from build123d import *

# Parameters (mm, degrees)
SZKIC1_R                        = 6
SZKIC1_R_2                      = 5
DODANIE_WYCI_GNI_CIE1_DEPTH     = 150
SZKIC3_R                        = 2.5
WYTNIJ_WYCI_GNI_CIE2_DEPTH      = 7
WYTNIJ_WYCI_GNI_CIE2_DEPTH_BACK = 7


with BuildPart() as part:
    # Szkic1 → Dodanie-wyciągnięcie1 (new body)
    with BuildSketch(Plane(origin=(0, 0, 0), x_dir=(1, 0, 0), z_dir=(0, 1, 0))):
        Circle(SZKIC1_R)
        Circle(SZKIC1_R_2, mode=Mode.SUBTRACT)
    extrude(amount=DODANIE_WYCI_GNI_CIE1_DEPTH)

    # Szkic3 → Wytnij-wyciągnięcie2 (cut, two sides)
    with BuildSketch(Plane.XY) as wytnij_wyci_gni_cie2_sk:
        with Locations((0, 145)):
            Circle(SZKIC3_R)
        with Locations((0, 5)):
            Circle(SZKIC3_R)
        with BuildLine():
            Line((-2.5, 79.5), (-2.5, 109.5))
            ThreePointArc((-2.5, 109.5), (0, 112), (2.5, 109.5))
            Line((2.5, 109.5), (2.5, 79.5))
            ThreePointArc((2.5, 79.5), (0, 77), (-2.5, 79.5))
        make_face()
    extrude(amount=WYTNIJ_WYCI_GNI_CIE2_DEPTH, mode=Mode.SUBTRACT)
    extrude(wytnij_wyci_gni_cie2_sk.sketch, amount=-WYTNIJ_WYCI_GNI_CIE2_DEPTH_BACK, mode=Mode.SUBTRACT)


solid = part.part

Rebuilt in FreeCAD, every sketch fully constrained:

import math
import FreeCAD as App
import Part
import Sketcher
Q = App.Units.Quantity

doc = App.newDocument("Part")
body = doc.addObject("PartDesign::Body", "Body")

sketch1 = doc.addObject("Sketcher::SketchObject", "Sketch")
body.addObject(sketch1)
sketch1.AttachmentSupport = (doc.XZ_Plane, [""])
sketch1.MapMode = "FlatFace"
sketch1.addGeometry([
    Part.Circle(App.Vector(0, 0, 0), App.Vector(0, 0, 1), 6),
    Part.Circle(App.Vector(0, 0, 0), App.Vector(0, 0, 1), 5),
], False)
sketch1.addConstraint([
    Sketcher.Constraint("Coincident", 0, 3, -1, 1),
    Sketcher.Constraint("Coincident", 1, 3, -1, 1),
    Sketcher.Constraint("Diameter", 0, Q("12 mm")),
    Sketcher.Constraint("Diameter", 1, Q("10 mm")),
])
pad1 = doc.addObject("PartDesign::Pad", "Pad")
body.addObject(pad1)
pad1.Profile = sketch1
pad1.Length = 150
pad1.Reversed = True

sketch2 = doc.addObject("Sketcher::SketchObject", "Sketch001")
body.addObject(sketch2)
sketch2.AttachmentSupport = (doc.XY_Plane, [""])
sketch2.MapMode = "FlatFace"
sketch2.addGeometry([
    Part.Circle(App.Vector(0, 145, 0), App.Vector(0, 0, 1), 2.5),
    Part.Circle(App.Vector(0, 5, 0), App.Vector(0, 0, 1), 2.5),
    Part.LineSegment(App.Vector(-2.5, 109.5, 0), App.Vector(-2.5, 79.5, 0)),
    Part.ArcOfCircle(Part.Circle(App.Vector(0, 79.5, 0), App.Vector(0, 0, 1), 2.5), math.radians(180), math.radians(360)),
    Part.LineSegment(App.Vector(2.5, 79.5, 0), App.Vector(2.5, 109.5, 0)),
    Part.ArcOfCircle(Part.Circle(App.Vector(0, 109.5, 0), App.Vector(0, 0, 1), 2.5), math.radians(0), math.radians(180)),
], False)
sketch2.addConstraint([
    Sketcher.Constraint("Tangent", 2, 2, 3, 1),
    Sketcher.Constraint("Tangent", 3, 2, 4, 1),
    Sketcher.Constraint("Tangent", 4, 2, 5, 1),
    Sketcher.Constraint("Tangent", 5, 2, 2, 1),
    Sketcher.Constraint("Vertical", 2),
    Sketcher.Constraint("Vertical", 4),
    Sketcher.Constraint("Equal", 0, 1),
    Sketcher.Constraint("Equal", 1, 3),
    Sketcher.Constraint("PointOnObject", 0, 3, -2),
    Sketcher.Constraint("PointOnObject", 1, 3, -2),
    Sketcher.Constraint("PointOnObject", 3, 3, -2),
    Sketcher.Constraint("Diameter", 0, Q("5 mm")),
    Sketcher.Constraint("DistanceY", 2, 2, 2, 1, Q("30 mm")),
    Sketcher.Constraint("DistanceY", -1, 1, 0, 3, Q("145 mm")),
    Sketcher.Constraint("DistanceY", -1, 1, 1, 3, Q("5 mm")),
    Sketcher.Constraint("DistanceY", -1, 1, 3, 3, Q("79.5 mm")),
])
pocket1 = doc.addObject("PartDesign::Pocket", "Pocket")
body.addObject(pocket1)
pocket1.Profile = sketch2
pocket1.Type = "ThroughAll"
pocket1.Midplane = True

doc.recompute()
